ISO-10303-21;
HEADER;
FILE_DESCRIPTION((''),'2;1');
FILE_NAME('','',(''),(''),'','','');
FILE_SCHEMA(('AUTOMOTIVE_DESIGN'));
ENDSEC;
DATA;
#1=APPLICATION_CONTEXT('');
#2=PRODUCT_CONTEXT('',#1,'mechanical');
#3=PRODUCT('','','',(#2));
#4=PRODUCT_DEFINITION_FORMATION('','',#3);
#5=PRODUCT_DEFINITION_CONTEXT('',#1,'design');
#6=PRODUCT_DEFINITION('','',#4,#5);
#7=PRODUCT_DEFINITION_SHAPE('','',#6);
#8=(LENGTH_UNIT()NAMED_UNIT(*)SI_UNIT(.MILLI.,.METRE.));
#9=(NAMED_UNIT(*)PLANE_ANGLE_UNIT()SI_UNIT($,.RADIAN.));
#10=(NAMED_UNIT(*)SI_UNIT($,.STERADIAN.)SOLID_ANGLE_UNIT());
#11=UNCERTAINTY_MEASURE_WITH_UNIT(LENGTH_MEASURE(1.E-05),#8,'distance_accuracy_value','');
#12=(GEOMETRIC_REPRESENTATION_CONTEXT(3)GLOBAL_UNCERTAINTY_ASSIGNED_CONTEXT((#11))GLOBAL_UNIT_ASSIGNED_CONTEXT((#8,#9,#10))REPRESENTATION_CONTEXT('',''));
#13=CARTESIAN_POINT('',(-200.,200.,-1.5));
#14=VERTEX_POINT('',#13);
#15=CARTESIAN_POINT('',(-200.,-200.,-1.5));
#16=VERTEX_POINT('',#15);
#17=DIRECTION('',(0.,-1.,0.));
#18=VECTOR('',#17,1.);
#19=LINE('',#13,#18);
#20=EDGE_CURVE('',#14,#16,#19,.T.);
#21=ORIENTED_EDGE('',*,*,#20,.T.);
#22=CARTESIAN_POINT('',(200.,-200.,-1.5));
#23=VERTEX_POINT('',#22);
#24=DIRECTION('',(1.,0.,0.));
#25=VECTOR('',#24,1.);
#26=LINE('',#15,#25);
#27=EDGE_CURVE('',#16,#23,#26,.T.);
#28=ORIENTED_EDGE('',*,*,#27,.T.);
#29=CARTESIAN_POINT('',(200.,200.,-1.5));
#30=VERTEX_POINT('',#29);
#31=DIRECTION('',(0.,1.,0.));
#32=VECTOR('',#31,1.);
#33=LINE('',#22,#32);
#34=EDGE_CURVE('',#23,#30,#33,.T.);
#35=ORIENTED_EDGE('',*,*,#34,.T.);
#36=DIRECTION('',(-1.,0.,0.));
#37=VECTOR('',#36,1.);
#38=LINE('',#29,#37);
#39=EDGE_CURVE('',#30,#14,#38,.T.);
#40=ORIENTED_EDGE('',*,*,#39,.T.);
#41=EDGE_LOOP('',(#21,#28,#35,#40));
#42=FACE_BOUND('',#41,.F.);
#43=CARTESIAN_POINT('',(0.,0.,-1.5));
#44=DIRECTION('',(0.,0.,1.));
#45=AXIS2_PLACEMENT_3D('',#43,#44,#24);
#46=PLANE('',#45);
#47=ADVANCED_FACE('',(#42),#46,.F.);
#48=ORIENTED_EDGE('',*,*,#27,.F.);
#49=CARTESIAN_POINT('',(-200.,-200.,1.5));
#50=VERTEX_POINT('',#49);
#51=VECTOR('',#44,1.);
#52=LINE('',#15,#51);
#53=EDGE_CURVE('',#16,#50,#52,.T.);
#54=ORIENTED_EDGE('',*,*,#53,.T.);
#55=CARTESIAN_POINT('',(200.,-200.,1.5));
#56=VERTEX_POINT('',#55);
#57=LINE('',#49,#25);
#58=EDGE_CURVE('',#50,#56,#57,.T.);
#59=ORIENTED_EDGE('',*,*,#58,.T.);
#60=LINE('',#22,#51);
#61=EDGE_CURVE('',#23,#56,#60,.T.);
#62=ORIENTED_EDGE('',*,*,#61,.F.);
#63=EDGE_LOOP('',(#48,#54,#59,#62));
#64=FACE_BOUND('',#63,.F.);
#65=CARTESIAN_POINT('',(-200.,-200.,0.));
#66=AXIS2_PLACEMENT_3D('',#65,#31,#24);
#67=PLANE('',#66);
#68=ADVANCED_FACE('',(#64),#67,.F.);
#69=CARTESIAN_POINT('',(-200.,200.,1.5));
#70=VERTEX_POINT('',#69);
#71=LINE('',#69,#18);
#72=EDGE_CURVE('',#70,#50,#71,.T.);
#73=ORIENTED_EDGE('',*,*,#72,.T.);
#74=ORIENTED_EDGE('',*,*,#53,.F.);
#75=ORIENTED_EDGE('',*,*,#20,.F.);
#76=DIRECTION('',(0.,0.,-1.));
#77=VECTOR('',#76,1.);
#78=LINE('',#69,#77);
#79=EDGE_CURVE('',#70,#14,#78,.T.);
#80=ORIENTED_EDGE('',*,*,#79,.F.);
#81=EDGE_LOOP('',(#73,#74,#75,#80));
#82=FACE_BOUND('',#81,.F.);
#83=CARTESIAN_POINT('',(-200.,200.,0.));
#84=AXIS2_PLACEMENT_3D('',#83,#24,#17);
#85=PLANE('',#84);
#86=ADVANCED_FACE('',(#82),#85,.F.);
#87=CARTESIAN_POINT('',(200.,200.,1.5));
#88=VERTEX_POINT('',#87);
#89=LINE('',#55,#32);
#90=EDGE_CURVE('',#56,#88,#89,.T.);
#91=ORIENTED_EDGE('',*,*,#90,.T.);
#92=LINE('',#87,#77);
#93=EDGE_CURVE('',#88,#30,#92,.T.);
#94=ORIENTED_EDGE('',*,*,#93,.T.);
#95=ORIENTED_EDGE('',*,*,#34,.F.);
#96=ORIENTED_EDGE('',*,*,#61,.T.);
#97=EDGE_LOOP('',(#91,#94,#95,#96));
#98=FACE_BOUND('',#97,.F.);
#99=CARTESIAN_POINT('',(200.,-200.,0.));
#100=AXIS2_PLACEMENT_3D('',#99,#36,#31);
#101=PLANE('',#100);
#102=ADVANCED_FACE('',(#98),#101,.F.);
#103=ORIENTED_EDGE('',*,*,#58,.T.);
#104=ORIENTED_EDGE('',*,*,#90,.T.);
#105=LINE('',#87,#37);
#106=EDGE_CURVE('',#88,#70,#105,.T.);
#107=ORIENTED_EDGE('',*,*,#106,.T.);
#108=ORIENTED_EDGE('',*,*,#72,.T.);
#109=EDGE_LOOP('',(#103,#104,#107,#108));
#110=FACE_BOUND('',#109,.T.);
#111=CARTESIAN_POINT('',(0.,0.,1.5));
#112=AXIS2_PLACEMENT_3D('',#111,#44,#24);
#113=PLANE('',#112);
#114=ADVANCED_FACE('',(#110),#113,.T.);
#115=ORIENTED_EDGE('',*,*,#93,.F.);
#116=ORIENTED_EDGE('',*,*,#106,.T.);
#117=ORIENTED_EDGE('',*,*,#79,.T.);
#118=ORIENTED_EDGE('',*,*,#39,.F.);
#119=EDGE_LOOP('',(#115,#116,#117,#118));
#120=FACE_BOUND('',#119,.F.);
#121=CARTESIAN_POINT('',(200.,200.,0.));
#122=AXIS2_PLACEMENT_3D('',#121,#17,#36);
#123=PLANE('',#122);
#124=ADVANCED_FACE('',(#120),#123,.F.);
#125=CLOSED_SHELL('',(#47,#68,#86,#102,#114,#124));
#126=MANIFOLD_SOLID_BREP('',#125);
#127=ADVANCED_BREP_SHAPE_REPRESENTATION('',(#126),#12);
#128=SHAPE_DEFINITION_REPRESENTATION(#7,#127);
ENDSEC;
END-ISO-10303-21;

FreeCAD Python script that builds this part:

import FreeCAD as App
import Part
import Sketcher
from FreeCAD import Vector

doc = App.newDocument("Part")
body = doc.addObject("PartDesign::Body", "Body")

sketch1 = body.newObject("Sketcher::SketchObject", "Sketch")
sketch1.AttachmentSupport = (doc.getObject("XY_Plane"), [""])
sketch1.MapMode = "FlatFace"
sketch1.addGeometry([
    Part.LineSegment(Vector(-200, 200, 0), Vector(-200, -200, 0)),
    Part.LineSegment(Vector(-200, -200, 0), Vector(200, -200, 0)),
    Part.LineSegment(Vector(200, -200, 0), Vector(200, 200, 0)),
    Part.LineSegment(Vector(200, 200, 0), Vector(-200, 200, 0)),
], False)
sketch1.addConstraint([
    Sketcher.Constraint("Coincident", 0, 2, 1, 1),
    Sketcher.Constraint("Coincident", 1, 2, 2, 1),
    Sketcher.Constraint("Coincident", 2, 2, 3, 1),
    Sketcher.Constraint("Coincident", 3, 2, 0, 1),
    Sketcher.Constraint("Vertical", 0),
    Sketcher.Constraint("Horizontal", 1),
    Sketcher.Constraint("Vertical", 2),
    Sketcher.Constraint("Horizontal", 3),
    Sketcher.Constraint("Symmetric", 0, 2, 2, 2, -1, 1),
    Sketcher.Constraint("Equal", 3, 0),
    Sketcher.Constraint("DistanceX", 1, 1, 1, 2, 400.0),
])
pad1 = body.newObject("PartDesign::Pad", "Pad")
pad1.Profile = sketch1
pad1.Length = 3
pad1.Midplane = True

doc.recompute()
